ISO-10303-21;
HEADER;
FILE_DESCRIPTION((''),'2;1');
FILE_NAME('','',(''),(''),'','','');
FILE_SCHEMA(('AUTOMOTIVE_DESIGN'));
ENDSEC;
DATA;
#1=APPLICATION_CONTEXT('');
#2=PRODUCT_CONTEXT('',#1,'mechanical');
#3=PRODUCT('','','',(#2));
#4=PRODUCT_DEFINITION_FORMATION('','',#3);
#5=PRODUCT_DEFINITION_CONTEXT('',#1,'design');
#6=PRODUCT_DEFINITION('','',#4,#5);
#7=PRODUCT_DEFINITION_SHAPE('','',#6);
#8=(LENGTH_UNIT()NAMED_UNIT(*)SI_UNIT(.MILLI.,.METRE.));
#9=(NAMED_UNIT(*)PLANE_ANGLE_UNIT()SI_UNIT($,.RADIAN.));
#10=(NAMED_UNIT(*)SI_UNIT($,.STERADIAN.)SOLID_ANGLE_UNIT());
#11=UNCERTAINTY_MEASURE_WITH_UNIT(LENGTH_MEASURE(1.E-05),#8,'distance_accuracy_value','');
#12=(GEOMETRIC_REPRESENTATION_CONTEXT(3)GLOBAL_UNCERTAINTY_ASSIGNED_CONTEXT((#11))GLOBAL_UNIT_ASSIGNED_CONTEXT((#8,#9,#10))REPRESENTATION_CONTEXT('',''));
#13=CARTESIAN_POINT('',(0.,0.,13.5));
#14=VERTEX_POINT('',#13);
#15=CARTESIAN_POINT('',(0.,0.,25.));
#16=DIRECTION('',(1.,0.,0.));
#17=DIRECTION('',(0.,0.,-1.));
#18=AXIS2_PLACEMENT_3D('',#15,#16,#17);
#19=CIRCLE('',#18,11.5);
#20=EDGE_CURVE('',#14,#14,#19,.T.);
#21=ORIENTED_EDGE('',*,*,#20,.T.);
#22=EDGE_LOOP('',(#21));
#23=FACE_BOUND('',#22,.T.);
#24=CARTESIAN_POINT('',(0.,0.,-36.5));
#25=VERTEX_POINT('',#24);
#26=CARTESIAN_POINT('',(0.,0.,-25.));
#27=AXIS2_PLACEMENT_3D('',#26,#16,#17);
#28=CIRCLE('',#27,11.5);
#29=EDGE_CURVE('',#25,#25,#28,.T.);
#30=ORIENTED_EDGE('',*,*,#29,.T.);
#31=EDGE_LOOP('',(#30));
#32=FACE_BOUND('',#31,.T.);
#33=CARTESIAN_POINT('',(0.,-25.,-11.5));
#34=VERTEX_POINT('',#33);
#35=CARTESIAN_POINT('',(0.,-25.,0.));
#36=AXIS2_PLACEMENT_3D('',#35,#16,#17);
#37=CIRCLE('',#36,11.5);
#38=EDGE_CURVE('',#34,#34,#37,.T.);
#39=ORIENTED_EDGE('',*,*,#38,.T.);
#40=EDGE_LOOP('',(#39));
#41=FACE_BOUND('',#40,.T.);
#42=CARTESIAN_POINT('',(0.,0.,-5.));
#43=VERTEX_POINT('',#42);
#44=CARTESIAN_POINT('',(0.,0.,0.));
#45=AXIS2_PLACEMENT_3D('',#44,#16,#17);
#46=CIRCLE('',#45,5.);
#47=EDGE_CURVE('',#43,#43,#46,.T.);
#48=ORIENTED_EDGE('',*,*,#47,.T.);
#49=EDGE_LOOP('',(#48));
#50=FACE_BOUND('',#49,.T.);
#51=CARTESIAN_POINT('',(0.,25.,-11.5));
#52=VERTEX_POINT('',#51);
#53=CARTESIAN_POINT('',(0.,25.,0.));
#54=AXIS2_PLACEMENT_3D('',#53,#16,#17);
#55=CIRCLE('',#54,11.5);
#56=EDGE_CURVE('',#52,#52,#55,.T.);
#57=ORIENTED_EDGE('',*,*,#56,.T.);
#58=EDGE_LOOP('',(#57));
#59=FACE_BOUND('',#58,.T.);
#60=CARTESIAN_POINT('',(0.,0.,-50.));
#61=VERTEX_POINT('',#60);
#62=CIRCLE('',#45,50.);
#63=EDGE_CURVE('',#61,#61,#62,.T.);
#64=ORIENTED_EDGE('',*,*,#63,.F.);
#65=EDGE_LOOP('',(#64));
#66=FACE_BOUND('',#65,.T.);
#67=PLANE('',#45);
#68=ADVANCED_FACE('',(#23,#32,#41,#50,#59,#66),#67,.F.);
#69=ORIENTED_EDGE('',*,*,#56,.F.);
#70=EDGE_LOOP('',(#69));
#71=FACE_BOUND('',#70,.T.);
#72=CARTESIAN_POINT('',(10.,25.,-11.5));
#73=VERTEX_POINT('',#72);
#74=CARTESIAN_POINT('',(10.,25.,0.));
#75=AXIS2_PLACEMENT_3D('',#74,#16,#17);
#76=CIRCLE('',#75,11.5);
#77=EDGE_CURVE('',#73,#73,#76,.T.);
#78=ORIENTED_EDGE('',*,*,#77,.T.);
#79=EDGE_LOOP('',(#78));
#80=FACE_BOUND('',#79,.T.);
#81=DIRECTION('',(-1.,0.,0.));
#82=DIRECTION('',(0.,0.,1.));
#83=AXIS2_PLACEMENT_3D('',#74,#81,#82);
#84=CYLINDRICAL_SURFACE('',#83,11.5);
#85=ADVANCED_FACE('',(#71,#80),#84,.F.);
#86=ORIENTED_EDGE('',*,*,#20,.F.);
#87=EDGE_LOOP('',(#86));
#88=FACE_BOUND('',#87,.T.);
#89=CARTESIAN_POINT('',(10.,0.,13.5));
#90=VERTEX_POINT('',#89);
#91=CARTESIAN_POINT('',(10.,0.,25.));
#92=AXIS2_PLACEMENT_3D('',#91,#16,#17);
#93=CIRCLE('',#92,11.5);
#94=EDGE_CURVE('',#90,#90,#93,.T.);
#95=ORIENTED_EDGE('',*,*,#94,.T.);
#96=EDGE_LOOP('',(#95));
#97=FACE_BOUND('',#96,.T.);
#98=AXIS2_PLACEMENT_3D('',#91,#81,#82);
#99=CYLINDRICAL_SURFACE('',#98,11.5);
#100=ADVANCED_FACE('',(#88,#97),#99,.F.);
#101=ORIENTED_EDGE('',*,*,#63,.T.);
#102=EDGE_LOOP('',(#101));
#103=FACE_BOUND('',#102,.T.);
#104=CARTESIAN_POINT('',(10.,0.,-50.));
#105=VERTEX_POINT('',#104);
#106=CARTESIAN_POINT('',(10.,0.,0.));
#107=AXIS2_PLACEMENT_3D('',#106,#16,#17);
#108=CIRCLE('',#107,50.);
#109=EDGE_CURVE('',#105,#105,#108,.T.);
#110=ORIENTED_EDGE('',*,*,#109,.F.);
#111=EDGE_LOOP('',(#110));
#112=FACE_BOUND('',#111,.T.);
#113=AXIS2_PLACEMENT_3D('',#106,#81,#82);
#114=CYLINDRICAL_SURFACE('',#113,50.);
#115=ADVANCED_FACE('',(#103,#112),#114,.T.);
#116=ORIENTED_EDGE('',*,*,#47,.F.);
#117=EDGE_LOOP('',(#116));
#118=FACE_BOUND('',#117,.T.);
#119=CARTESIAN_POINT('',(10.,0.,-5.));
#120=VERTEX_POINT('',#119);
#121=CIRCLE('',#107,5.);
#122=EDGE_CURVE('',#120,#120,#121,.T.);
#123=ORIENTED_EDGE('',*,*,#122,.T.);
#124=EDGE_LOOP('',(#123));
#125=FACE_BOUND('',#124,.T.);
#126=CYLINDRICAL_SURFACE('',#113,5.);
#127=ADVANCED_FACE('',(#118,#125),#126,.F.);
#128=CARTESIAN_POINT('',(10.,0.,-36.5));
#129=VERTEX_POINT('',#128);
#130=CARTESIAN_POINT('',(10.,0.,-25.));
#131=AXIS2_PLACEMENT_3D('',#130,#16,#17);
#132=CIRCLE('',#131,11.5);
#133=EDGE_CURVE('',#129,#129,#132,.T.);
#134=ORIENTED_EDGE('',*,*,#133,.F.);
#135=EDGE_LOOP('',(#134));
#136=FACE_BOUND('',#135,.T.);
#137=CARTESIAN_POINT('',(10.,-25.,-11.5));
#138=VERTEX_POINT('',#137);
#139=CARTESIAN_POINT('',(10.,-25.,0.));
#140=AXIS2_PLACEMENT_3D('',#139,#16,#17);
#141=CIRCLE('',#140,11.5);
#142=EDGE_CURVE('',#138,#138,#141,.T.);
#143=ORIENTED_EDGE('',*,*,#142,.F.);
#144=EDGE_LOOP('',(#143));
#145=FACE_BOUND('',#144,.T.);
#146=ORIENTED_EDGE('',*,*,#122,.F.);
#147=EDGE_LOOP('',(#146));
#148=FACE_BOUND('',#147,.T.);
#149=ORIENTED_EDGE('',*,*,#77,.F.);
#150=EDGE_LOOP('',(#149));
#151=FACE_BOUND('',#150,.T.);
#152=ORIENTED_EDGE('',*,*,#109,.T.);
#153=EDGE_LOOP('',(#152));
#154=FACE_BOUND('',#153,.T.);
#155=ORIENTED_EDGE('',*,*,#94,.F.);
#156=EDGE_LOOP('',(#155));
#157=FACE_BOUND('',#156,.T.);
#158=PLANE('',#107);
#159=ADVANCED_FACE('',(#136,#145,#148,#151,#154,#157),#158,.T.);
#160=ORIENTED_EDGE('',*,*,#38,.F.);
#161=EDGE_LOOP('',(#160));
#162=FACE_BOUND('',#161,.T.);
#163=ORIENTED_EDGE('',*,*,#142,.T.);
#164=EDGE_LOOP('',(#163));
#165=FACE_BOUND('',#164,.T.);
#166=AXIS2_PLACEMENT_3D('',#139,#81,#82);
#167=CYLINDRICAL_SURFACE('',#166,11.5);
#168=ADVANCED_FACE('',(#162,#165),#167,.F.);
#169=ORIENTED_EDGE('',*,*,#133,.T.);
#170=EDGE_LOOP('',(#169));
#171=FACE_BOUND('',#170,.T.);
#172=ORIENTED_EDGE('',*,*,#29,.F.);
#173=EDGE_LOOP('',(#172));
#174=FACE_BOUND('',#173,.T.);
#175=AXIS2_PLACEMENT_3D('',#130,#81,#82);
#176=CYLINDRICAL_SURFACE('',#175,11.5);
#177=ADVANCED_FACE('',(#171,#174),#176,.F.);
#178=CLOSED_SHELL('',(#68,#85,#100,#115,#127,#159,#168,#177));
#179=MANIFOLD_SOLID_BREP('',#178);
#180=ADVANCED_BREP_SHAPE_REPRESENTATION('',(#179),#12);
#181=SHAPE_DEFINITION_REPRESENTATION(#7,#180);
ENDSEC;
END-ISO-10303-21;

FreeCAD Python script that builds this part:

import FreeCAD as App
import Part
import Sketcher

doc = App.newDocument("Part")
body = doc.addObject("PartDesign::Body", "Body")

# Sketch on YZ plane
sketch1 = doc.addObject("Sketcher::SketchObject", "Sketch")
body.addObject(sketch1)
sketch1.AttachmentSupport = (doc.YZ_Plane, [""])
sketch1.MapMode = "FlatFace"
sketch1.addGeometry([
    Part.Circle(App.Vector(0, 0, 0), App.Vector(0, 0, 1), 50),  # 0
    Part.Circle(App.Vector(-25, 0, 0), App.Vector(0, 0, 1), 12),  # 1
    Part.Circle(App.Vector(0, 25, 0), App.Vector(0, 0, 1), 12),  # 2
    Part.Circle(App.Vector(0, 0, 0), App.Vector(0, 0, 1), 5),  # 3
    Part.Circle(App.Vector(0, -25, 0), App.Vector(0, 0, 1), 12),  # 4
    Part.Circle(App.Vector(25, 0, 0), App.Vector(0, 0, 1), 12),  # 5
], False)
sketch1.addConstraint([
    Sketcher.Constraint("Coincident", 0, 3, -1, 1),
    Sketcher.Constraint("Coincident", 3, 3, -1, 1),
    Sketcher.Constraint("Equal", 1, 2),
    Sketcher.Constraint("Equal", 2, 4),
    Sketcher.Constraint("Equal", 4, 5),
    Sketcher.Constraint("Symmetric", 2, 3, 4, 3, -1, 1),
    Sketcher.Constraint("Symmetric", 1, 3, 5, 3, -1, 1),
    Sketcher.Constraint("PointOnObject", 1, 3, -1),
    Sketcher.Constraint("PointOnObject", 2, 3, -2),
    Sketcher.Constraint("Diameter", 0, 100.0),
    Sketcher.Constraint("Diameter", 1, 23.0),
    Sketcher.Constraint("Diameter", 3, 10.0),
    Sketcher.Constraint("DistanceX", 1, 3, -1, 1, 25.0),
    Sketcher.Constraint("DistanceY", -1, 1, 2, 3, 25.0),
])
pad1 = doc.addObject("PartDesign::Pad", "Pad")
body.addObject(pad1)
pad1.Profile = sketch1
pad1.Length = 10

doc.recompute()
